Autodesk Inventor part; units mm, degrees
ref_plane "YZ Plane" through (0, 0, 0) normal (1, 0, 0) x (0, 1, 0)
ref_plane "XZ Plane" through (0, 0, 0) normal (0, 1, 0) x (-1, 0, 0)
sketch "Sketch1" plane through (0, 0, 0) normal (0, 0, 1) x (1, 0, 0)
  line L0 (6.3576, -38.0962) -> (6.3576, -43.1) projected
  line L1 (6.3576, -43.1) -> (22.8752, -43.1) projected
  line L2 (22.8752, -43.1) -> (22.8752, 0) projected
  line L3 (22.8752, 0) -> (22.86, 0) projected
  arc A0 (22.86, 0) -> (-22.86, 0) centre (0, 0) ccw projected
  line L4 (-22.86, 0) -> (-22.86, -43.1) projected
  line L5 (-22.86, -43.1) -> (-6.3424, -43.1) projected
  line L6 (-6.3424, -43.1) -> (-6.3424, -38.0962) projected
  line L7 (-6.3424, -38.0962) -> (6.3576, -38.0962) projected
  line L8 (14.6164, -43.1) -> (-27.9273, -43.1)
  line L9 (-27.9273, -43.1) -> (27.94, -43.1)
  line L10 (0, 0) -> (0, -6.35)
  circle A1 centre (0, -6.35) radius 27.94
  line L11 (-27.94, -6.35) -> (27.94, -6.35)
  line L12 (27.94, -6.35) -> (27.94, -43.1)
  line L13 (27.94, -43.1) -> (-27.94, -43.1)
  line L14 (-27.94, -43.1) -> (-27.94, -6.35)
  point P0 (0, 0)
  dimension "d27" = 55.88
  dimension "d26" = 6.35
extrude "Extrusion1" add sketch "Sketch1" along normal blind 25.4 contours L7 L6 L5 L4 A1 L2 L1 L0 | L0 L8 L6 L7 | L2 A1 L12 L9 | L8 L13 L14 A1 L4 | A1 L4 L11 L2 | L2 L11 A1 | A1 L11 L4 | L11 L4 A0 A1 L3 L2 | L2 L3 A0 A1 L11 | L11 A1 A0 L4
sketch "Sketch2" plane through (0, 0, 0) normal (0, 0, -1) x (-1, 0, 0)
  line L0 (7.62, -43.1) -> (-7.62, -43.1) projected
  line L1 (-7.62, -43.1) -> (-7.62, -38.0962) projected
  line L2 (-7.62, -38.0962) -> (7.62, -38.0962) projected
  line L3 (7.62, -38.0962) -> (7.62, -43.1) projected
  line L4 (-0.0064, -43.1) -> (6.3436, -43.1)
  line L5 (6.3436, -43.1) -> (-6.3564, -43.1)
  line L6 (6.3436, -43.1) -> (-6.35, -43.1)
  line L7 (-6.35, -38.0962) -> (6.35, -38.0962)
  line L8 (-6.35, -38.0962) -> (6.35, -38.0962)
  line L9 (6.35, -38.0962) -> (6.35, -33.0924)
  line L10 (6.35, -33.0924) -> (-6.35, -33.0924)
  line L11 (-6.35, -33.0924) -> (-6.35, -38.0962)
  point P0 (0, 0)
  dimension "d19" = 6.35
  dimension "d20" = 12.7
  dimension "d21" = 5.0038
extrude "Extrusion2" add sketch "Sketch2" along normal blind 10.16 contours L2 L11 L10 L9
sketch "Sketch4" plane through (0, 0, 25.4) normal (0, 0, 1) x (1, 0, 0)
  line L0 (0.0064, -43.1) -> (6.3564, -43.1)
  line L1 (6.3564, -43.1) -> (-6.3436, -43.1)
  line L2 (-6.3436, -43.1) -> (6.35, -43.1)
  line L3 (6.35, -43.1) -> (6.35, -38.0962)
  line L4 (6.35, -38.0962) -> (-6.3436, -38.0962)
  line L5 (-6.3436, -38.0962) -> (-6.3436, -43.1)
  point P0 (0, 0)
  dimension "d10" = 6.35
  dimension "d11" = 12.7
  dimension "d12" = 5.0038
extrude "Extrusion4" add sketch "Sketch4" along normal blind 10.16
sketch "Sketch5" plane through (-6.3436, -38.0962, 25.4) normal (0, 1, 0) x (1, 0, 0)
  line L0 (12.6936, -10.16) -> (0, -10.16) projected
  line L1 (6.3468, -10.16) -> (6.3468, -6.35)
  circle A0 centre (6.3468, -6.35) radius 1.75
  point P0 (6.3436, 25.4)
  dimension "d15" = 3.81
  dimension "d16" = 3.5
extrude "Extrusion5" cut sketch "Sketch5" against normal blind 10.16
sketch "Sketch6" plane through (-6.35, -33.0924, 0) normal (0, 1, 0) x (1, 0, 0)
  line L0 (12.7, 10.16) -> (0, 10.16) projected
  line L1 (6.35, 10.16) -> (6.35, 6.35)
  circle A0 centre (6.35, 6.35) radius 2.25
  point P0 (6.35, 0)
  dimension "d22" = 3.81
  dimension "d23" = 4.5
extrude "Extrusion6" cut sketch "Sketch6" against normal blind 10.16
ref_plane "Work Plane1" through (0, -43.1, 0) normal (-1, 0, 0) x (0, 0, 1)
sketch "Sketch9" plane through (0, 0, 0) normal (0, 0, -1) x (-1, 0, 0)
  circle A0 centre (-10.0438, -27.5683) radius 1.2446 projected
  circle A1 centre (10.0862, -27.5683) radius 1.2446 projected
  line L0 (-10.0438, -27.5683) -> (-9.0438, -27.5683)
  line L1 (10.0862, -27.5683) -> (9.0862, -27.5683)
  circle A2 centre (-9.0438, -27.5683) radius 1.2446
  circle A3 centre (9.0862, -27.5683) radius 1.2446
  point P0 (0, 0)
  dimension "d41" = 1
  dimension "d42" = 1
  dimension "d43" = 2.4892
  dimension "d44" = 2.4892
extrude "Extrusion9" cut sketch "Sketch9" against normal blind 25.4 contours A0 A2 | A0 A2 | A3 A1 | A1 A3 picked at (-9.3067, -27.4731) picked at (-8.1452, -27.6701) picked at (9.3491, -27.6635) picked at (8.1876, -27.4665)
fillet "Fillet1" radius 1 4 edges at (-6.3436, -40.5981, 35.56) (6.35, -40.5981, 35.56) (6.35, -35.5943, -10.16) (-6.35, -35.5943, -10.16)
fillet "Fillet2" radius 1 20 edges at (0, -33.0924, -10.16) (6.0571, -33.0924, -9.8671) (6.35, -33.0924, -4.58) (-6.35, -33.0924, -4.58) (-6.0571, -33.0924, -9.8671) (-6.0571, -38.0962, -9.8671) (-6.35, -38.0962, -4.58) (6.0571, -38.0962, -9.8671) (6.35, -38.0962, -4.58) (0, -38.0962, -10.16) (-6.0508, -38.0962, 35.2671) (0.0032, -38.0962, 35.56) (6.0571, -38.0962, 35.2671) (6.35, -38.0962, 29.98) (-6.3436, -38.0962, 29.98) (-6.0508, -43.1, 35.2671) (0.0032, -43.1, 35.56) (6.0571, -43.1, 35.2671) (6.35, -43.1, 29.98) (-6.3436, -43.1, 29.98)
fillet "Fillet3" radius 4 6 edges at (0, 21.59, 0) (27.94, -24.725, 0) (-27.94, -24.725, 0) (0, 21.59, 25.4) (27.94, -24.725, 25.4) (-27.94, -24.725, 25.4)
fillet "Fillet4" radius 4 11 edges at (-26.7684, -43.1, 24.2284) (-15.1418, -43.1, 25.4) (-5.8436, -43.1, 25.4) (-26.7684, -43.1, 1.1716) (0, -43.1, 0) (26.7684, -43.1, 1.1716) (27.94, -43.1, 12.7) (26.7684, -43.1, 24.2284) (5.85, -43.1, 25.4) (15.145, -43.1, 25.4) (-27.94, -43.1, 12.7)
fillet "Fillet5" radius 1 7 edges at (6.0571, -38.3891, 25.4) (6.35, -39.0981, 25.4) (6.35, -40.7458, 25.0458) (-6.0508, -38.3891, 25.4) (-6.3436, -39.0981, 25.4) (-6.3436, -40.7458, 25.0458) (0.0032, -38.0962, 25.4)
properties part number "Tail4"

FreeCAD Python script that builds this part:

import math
import FreeCAD as App
import Part
import Sketcher
from FreeCAD import Vector
Q = App.Units.Quantity


def edges_at(feature, points):
    """Names of the edges that pass closest to the given points."""
    edges = feature.Shape.Edges
    near = lambda p: min(range(len(edges)), key=lambda i: edges[i].distToShape(Part.Vertex(*p))[0])
    return sorted({f"Edge{near(p) + 1}" for p in points})

doc = App.newDocument("Part")
body = doc.addObject("PartDesign::Body", "Body")

# Sketch on XY plane
sketch1 = doc.addObject("Sketcher::SketchObject", "Sketch")
body.addObject(sketch1)
sketch1.AttachmentSupport = (doc.XY_Plane, [""])
sketch1.MapMode = "FlatFace"
sketch1.addGeometry([
    Part.LineSegment(Vector(28, -43, 0), Vector(28, -6, 0)),
    Part.ArcOfCircle(Part.Circle(Vector(0, -6, 0), Vector(0, 0, 1), 28), math.radians(0), math.radians(180)),
    Part.LineSegment(Vector(-28, -6, 0), Vector(-28, -43, 0)),
    Part.LineSegment(Vector(-28, -43, 0), Vector(28, -43, 0)),
], False)
sketch1.addConstraint([
    Sketcher.Constraint("Tangent", 0, 2, 1, 1),
    Sketcher.Constraint("Tangent", 1, 2, 2, 1),
    Sketcher.Constraint("Coincident", 2, 2, 3, 1),
    Sketcher.Constraint("Coincident", 3, 2, 0, 1),
    Sketcher.Constraint("Vertical", 0),
    Sketcher.Constraint("Vertical", 2),
    Sketcher.Constraint("Horizontal", 3),
    Sketcher.Constraint("PointOnObject", 1, 3, -2),
    Sketcher.Constraint("Radius", 1, Q("1.1 in")),
    Sketcher.Constraint("DistanceY", 1, 3, -1, 1, Q("0.25 in")),
    Sketcher.Constraint("DistanceY", 0, 1, 0, 2, Q("36.75 mm")),
])
pad1 = doc.addObject("PartDesign::Pad", "Pad")
body.addObject(pad1)
pad1.Profile = sketch1
pad1.Length = Q("1 in")

# Sketch on XY plane
sketch2 = doc.addObject("Sketcher::SketchObject", "Sketch001")
body.addObject(sketch2)
sketch2.AttachmentSupport = (doc.XY_Plane, [""])
sketch2.MapMode = "FlatFace"
sketch2.addGeometry([
    Part.LineSegment(Vector(6, -38, 0), Vector(-6, -38, 0)),
    Part.LineSegment(Vector(-6, -38, 0), Vector(-6, -33, 0)),
    Part.LineSegment(Vector(-6, -33, 0), Vector(6, -33, 0)),
    Part.LineSegment(Vector(6, -33, 0), Vector(6, -38, 0)),
], False)
sketch2.addConstraint([
    Sketcher.Constraint("Coincident", 0, 2, 1, 1),
    Sketcher.Constraint("Coincident", 1, 2, 2, 1),
    Sketcher.Constraint("Coincident", 2, 2, 3, 1),
    Sketcher.Constraint("Coincident", 3, 2, 0, 1),
    Sketcher.Constraint("Horizontal", 0),
    Sketcher.Constraint("Vertical", 1),
    Sketcher.Constraint("Horizontal", 2),
    Sketcher.Constraint("Vertical", 3),
    Sketcher.Constraint("DistanceX", 0, 2, 0, 1, Q("0.5 in")),
    Sketcher.Constraint("DistanceY", 1, 1, 1, 2, Q("0.197 in")),
    Sketcher.Constraint("DistanceX", 0, 2, -1, 1, Q("0.25 in")),
    Sketcher.Constraint("DistanceY", 0, 2, -1, 1, Q("38.0962 mm")),
])
pad2 = doc.addObject("PartDesign::Pad", "Pad001")
body.addObject(pad2)
pad2.Profile = sketch2
pad2.Length = Q("0.4 in")
pad2.Reversed = True

# Sketch on XY plane
sketch3 = doc.addObject("Sketcher::SketchObject", "Sketch002")
body.addObject(sketch3)
sketch3.AttachmentSupport = (doc.XY_Plane, [""])
sketch3.MapMode = "FlatFace"
sketch3.AttachmentOffset = App.Placement(Vector(0, 0, 1 * 25.4), App.Rotation())
sketch3.addGeometry([
    Part.LineSegment(Vector(-6, -43, 0), Vector(6, -43, 0)),
    Part.LineSegment(Vector(6, -43, 0), Vector(6, -38, 0)),
    Part.LineSegment(Vector(6, -38, 0), Vector(-6, -38, 0)),
    Part.LineSegment(Vector(-6, -38, 0), Vector(-6, -43, 0)),
], False)
sketch3.addConstraint([
    Sketcher.Constraint("Coincident", 0, 2, 1, 1),
    Sketcher.Constraint("Coincident", 1, 2, 2, 1),
    Sketcher.Constraint("Coincident", 2, 2, 3, 1),
    Sketcher.Constraint("Coincident", 3, 2, 0, 1),
    Sketcher.Constraint("Horizontal", 0),
    Sketcher.Constraint("Vertical", 1),
    Sketcher.Constraint("Horizontal", 2),
    Sketcher.Constraint("Vertical", 3),
    Sketcher.Constraint("DistanceY", 1, 1, 1, 2, Q("0.197 in")),
    Sketcher.Constraint("DistanceX", -1, 1, 0, 2, Q("0.25 in")),
    Sketcher.Constraint("DistanceX", 0, 1, 0, 2, Q("12.6936 mm")),
    Sketcher.Constraint("DistanceY", 0, 2, -1, 1, Q("43.1 mm")),
])
pad3 = doc.addObject("PartDesign::Pad", "Pad002")
body.addObject(pad3)
pad3.Profile = sketch3
pad3.Length = Q("0.4 in")

# Sketch on XZ plane
sketch4 = doc.addObject("Sketcher::SketchObject", "Sketch003")
body.addObject(sketch4)
sketch4.AttachmentSupport = (doc.XZ_Plane, [""])
sketch4.MapMode = "FlatFace"
sketch4.AttachmentOffset = App.Placement(Vector(0, 0, 38.0962), App.Rotation())
sketch4.addGeometry(Part.Circle(Vector(0, 31.8, 0), Vector(0, 0, 1), 1.8), False)
sketch4.addConstraint([
    Sketcher.Constraint("Diameter", 0, Q("0.1378 in")),
    Sketcher.Constraint("DistanceY", -1, 1, 0, 3, Q("1.25 in")),
    Sketcher.Constraint("DistanceX", -1, 1, 0, 3, Q("0.0032 mm")),
])
pocket1 = doc.addObject("PartDesign::Pocket", "Pocket")
body.addObject(pocket1)
pocket1.Profile = sketch4
pocket1.Length = Q("0.4 in")
pocket1.Reversed = True

# Sketch on XZ plane
sketch5 = doc.addObject("Sketcher::SketchObject", "Sketch004")
body.addObject(sketch5)
sketch5.AttachmentSupport = (doc.XZ_Plane, [""])
sketch5.MapMode = "FlatFace"
sketch5.AttachmentOffset = App.Placement(Vector(0, 0, 33.0924), App.Rotation())
sketch5.addGeometry(Part.Circle(Vector(0, -6.3, 0), Vector(0, 0, 1), 2.2), False)
sketch5.addConstraint([
    Sketcher.Constraint("PointOnObject", 0, 3, -2),
    Sketcher.Constraint("Diameter", 0, Q("4.5 mm")),
    Sketcher.Constraint("DistanceY", 0, 3, -1, 1, Q("0.25 in")),
])
pocket2 = doc.addObject("PartDesign::Pocket", "Pocket001")
body.addObject(pocket2)
pocket2.Profile = sketch5
pocket2.Length = Q("0.4 in")
pocket2.Reversed = True

# Sketch on XY plane
sketch6 = doc.addObject("Sketcher::SketchObject", "Sketch005")
body.addObject(sketch6)
sketch6.AttachmentSupport = (doc.XY_Plane, [""])
sketch6.MapMode = "FlatFace"
sketch6.addGeometry([
    Part.Circle(Vector(9, -27.6, 0), Vector(0, 0, 1), 1.2),
    Part.Circle(Vector(-9.1, -27.6, 0), Vector(0, 0, 1), 1.2),
], False)
sketch6.addConstraint([
    Sketcher.Constraint("Equal", 0, 1),
    Sketcher.Constraint("Horizontal", 0, 3, 1, 3),
    Sketcher.Constraint("Diameter", 0, Q("0.098 in")),
    Sketcher.Constraint("DistanceX", -1, 1, 0, 3, Q("9.0438 mm")),
    Sketcher.Constraint("DistanceY", 0, 3, -1, 1, Q("27.5683 mm")),
    Sketcher.Constraint("DistanceX", 1, 3, -1, 1, Q("9.0862 mm")),
])
pocket3 = doc.addObject("PartDesign::Pocket", "Pocket002")
body.addObject(pocket3)
pocket3.Profile = sketch6
pocket3.Length = Q("1 in")
pocket3.Reversed = True
doc.recompute()

fillet = doc.addObject("PartDesign::Fillet", "Fillet")
body.addObject(fillet)
fillet.Base = (pocket3, edges_at(pocket3, [
    (-6.344, -40.598, 35.56),
    (6.35, -40.598, 35.56),
    (6.35, -35.594, -10.16),
    (-6.35, -35.594, -10.16),
]))
fillet.Radius = 1
doc.recompute()

fillet2 = doc.addObject("PartDesign::Fillet", "Fillet001")
body.addObject(fillet2)
fillet2.Base = (fillet, edges_at(fillet, [
    (0, -33.092, -10.16),
    (6.057, -33.092, -9.867),
    (6.35, -33.092, -4.58),
    (-6.35, -33.092, -4.58),
    (-6.057, -33.092, -9.867),
    (-6.057, -38.096, -9.867),
    (-6.35, -38.096, -4.58),
    (6.057, -38.096, -9.867),
    (6.35, -38.096, -4.58),
    (0, -38.096, -10.16),
    (-6.051, -38.096, 35.267),
    (0.003, -38.096, 35.56),
    (6.057, -38.096, 35.267),
    (6.35, -38.096, 29.98),
    (-6.344, -38.096, 29.98),
    (-6.051, -43.1, 35.267),
    (0.003, -43.1, 35.56),
    (6.057, -43.1, 35.267),
    (6.35, -43.1, 29.98),
    (-6.344, -43.1, 29.98),
]))
fillet2.Radius = 1
doc.recompute()

fillet3 = doc.addObject("PartDesign::Fillet", "Fillet002")
body.addObject(fillet3)
fillet3.Base = (fillet2, edges_at(fillet2, [
    (0, 21.59, 0),
    (27.94, -24.725, 0),
    (-27.94, -24.725, 0),
    (0, 21.59, 25.4),
    (27.94, -24.725, 25.4),
    (-27.94, -24.725, 25.4),
]))
fillet3.Radius = 4
doc.recompute()

fillet4 = doc.addObject("PartDesign::Fillet", "Fillet003")
body.addObject(fillet4)
fillet4.Base = (fillet3, edges_at(fillet3, [
    (-26.768, -43.1, 24.228),
    (-15.142, -43.1, 25.4),
    (-5.844, -43.1, 25.4),
    (-26.768, -43.1, 1.172),
    (0, -43.1, 0),
    (26.768, -43.1, 1.172),
    (27.94, -43.1, 12.7),
    (26.768, -43.1, 24.228),
    (5.85, -43.1, 25.4),
    (15.145, -43.1, 25.4),
    (-27.94, -43.1, 12.7),
]))
fillet4.Radius = 4
doc.recompute()

fillet5 = doc.addObject("PartDesign::Fillet", "Fillet004")
body.addObject(fillet5)
fillet5.Base = (fillet4, edges_at(fillet4, [
    (6.057, -38.389, 25.4),
    (6.35, -39.098, 25.4),
    (6.35, -40.746, 25.046),
    (-6.051, -38.389, 25.4),
    (-6.344, -39.098, 25.4),
    (-6.344, -40.746, 25.046),
    (0.003, -38.096, 25.4),
]))
fillet5.Radius = 1

doc.recompute()
